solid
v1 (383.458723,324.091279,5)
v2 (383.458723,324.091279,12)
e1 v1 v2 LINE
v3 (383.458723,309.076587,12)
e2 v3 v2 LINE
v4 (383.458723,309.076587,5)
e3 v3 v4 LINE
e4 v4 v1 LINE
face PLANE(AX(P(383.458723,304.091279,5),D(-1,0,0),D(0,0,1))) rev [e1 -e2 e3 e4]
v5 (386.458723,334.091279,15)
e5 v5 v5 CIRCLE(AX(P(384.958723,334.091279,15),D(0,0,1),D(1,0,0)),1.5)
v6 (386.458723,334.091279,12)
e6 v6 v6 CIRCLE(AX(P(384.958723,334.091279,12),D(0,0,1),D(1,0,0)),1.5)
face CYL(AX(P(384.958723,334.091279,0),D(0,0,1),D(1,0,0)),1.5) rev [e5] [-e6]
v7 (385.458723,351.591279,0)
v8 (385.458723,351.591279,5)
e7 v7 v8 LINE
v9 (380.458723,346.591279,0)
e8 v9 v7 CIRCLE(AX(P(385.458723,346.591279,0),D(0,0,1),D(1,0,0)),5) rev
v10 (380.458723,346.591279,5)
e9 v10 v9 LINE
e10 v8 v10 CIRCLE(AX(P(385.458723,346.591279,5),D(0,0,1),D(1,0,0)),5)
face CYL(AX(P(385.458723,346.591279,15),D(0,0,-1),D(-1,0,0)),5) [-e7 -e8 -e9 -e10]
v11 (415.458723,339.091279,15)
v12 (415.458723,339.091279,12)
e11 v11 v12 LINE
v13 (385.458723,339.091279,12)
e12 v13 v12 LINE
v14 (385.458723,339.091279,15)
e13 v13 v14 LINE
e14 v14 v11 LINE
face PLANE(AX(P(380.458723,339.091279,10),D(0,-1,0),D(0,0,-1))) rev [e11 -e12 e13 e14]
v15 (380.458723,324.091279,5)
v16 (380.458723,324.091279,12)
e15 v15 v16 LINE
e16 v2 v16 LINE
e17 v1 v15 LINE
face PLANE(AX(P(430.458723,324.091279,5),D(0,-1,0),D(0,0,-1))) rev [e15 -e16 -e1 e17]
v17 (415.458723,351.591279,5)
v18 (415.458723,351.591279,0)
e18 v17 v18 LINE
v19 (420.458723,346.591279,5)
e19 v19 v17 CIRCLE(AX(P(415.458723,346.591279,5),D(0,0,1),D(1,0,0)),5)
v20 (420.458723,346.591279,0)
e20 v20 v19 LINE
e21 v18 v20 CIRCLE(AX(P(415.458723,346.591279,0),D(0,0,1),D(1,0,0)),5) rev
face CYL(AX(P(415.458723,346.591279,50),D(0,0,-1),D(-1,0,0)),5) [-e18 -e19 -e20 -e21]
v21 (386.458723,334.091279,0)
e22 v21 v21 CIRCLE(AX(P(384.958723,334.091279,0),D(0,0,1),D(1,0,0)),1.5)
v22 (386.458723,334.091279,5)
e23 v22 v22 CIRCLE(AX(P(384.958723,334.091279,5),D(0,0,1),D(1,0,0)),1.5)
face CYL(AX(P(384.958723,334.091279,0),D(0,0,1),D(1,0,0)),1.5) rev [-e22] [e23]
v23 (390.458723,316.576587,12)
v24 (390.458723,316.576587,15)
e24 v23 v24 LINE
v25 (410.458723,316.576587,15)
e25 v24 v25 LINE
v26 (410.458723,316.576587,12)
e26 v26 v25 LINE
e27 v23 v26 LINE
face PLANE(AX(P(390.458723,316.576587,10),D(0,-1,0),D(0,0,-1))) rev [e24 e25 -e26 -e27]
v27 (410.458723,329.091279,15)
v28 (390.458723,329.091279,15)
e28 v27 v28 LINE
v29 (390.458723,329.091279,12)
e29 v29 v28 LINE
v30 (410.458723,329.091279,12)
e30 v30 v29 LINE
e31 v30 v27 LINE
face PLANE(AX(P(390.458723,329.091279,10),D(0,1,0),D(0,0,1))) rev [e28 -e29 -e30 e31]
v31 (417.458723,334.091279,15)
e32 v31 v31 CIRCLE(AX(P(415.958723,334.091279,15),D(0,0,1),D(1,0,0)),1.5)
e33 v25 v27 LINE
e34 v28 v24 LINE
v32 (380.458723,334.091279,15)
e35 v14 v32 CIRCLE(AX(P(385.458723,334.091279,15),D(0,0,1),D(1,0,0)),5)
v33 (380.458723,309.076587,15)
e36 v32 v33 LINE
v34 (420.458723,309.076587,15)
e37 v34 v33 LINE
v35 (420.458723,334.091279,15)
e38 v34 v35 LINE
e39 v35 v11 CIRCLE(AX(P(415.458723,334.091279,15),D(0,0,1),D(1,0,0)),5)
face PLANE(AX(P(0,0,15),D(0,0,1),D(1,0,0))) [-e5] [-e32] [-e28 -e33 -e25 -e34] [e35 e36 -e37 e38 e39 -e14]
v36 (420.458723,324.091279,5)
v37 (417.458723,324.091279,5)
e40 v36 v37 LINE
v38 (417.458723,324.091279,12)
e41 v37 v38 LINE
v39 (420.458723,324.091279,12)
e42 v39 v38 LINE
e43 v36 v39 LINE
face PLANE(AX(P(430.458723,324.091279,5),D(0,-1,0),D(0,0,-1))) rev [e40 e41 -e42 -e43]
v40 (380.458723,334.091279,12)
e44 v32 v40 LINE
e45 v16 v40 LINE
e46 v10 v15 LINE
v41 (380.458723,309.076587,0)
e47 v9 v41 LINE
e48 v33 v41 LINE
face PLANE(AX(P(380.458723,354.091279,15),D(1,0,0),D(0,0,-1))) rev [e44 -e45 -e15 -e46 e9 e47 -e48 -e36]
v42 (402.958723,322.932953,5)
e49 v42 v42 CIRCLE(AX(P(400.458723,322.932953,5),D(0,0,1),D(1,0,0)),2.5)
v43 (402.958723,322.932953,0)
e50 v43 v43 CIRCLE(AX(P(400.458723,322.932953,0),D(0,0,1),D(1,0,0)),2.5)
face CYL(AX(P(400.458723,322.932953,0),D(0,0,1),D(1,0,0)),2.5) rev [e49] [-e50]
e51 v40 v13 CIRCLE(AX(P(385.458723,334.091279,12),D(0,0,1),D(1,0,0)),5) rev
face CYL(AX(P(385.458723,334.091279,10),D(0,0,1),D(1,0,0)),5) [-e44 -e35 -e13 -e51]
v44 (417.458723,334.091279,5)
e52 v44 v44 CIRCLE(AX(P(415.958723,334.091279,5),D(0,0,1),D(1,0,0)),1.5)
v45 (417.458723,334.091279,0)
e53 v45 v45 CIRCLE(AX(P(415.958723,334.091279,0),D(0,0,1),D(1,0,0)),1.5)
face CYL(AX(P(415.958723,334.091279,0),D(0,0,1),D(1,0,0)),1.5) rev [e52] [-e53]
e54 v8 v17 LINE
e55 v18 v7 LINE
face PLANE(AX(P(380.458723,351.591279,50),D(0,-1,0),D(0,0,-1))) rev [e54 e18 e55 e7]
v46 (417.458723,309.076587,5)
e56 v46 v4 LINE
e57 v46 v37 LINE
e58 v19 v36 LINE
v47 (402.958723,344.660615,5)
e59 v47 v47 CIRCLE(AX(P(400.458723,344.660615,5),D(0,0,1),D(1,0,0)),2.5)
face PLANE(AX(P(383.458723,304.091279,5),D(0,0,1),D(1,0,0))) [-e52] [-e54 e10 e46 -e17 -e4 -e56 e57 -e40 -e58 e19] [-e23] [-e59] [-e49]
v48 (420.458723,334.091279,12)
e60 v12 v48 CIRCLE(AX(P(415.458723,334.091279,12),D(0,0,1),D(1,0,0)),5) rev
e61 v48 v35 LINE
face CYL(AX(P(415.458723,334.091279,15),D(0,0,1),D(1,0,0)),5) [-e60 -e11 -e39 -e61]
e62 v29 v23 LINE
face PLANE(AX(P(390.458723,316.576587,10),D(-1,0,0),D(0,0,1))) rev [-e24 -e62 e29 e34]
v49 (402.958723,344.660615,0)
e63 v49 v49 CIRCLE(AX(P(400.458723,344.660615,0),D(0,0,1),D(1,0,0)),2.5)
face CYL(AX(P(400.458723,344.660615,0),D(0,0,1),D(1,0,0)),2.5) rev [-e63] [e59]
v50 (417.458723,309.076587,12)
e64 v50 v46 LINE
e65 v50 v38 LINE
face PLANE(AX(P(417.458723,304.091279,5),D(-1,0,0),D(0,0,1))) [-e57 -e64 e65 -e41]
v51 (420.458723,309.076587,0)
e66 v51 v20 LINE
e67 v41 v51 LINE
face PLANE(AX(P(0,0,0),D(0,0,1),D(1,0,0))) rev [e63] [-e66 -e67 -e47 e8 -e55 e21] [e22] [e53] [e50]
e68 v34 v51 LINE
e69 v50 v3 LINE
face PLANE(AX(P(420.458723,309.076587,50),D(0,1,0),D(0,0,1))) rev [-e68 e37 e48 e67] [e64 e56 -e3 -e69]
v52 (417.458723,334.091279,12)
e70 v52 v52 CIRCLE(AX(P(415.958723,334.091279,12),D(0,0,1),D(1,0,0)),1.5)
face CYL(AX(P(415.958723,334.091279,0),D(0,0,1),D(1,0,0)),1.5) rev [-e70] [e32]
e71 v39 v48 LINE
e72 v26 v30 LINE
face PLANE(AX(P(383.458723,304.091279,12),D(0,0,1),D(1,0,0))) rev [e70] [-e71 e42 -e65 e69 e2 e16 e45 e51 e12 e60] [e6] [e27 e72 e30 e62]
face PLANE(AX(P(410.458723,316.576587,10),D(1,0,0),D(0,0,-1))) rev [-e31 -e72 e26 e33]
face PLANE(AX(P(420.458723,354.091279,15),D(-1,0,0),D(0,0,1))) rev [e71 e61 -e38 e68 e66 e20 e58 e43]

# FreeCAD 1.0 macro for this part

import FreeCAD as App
import Part
import Sketcher

V = App.Vector


def edges_at(feature, points):
    """Names of the edges that pass closest to the given points."""
    edges = feature.Shape.Edges
    near = lambda p: min(range(len(edges)), key=lambda i: edges[i].distToShape(Part.Vertex(*p))[0])
    return sorted({f"Edge{near(p) + 1}" for p in points})

doc = App.newDocument("Part")
params = doc.addObject("Spreadsheet::Sheet", "Params")
for row, (alias, value) in enumerate([
    ("sketch1_width", "40 mm"),
    ("sketch1_height", "50 mm"),
    ("pad1_length", "15 mm"),
    ("sketch2_width", "34 mm"),
    ("sketch2_height", "7 mm"),
    ("pocket1_length", "50 mm"),
    ("sketch3_width", "30 mm"),
    ("sketch3_height", "7 mm"),
    ("pocket2_length", "50 mm"),
    ("sketch4_width", "40 mm"),
    ("sketch4_height", "2.5 mm"),
    ("pocket3_length", "50 mm"),
    ("sketch5_width", "40 mm"),
    ("sketch5_height", "12.5 mm"),
    ("pocket4_length", "5 mm"),
    ("sketch6_width", "20 mm"),
    ("pocket5_length", "5 mm"),
    ("sketch7_diameter", "5 mm"),
    ("pocket6_length", "5 mm"),
    ("sketch8_diameter", "3 mm"),
    ("pocket7_length", "15 mm"),
    ("fillet_radius", "5 mm"),
    ("fillet2_radius", "5 mm"),
], start=1):
    params.set(f"A{row}", alias)
    params.set(f"B{row}", "=" + value)
    params.setAlias(f"B{row}", alias)

body = doc.addObject("PartDesign::Body", "Body")

# Sketch on XY plane
sketch1 = body.newObject("Sketcher::SketchObject", "Sketch")
sketch1.AttachmentSupport = (doc.getObject("XY_Plane"), [""])
sketch1.MapMode = "FlatFace"
sketch1.addGeometry([
    Part.LineSegment(V(380.458723, 354.091279, 0), V(380.458723, 304.091279, 0)),
    Part.LineSegment(V(380.458723, 304.091279, 0), V(420.458723, 304.091279, 0)),
    Part.LineSegment(V(420.458723, 304.091279, 0), V(420.458723, 354.091279, 0)),
    Part.LineSegment(V(420.458723, 354.091279, 0), V(380.458723, 354.091279, 0)),
], False)
sketch1.addConstraint([
    Sketcher.Constraint("Coincident", 0, 2, 1, 1),
    Sketcher.Constraint("Coincident", 1, 2, 2, 1),
    Sketcher.Constraint("Coincident", 2, 2, 3, 1),
    Sketcher.Constraint("Coincident", 3, 2, 0, 1),
    Sketcher.Constraint("Vertical", 0),
    Sketcher.Constraint("Horizontal", 1),
    Sketcher.Constraint("Vertical", 2),
    Sketcher.Constraint("Horizontal", 3),
    Sketcher.Constraint("DistanceX", 1, 1, 1, 2, 40.0),
    Sketcher.Constraint("DistanceY", 0, 2, 0, 1, 50.0),
    Sketcher.Constraint("DistanceY", -1, 1, 0, 2, 304.091279),
    Sketcher.Constraint("DistanceX", -1, 1, 0, 2, 380.458723),
])
sketch1.setExpression("Constraints[8]", "Params.sketch1_width")
sketch1.setExpression("Constraints[9]", "Params.sketch1_height")
pad1 = body.newObject("PartDesign::Pad", "Pad")
pad1.Profile = sketch1
pad1.setExpression("Length", "Params.pad1_length")

# Sketch on XZ plane
sketch2 = body.newObject("Sketcher::SketchObject", "Sketch001")
sketch2.AttachmentSupport = (doc.getObject("XZ_Plane"), [""])
sketch2.MapMode = "FlatFace"
sketch2.AttachmentOffset = App.Placement(V(0, 0, -354.091279), App.Rotation())
sketch2.addGeometry([
    Part.LineSegment(V(383.458723, 5, 0), V(383.458723, 12, 0)),
    Part.LineSegment(V(383.458723, 12, 0), V(417.458723, 12, 0)),
    Part.LineSegment(V(417.458723, 12, 0), V(417.458723, 5, 0)),
    Part.LineSegment(V(417.458723, 5, 0), V(383.458723, 5, 0)),
], False)
sketch2.addConstraint([
    Sketcher.Constraint("Coincident", 0, 2, 1, 1),
    Sketcher.Constraint("Coincident", 1, 2, 2, 1),
    Sketcher.Constraint("Coincident", 2, 2, 3, 1),
    Sketcher.Constraint("Coincident", 3, 2, 0, 1),
    Sketcher.Constraint("Vertical", 0),
    Sketcher.Constraint("Horizontal", 1),
    Sketcher.Constraint("Vertical", 2),
    Sketcher.Constraint("Horizontal", 3),
    Sketcher.Constraint("DistanceX", 1, 1, 1, 2, 34.0),
    Sketcher.Constraint("DistanceY", 0, 1, 0, 2, 7.0),
    Sketcher.Constraint("DistanceY", -1, 1, 0, 2, 12.0),
    Sketcher.Constraint("DistanceX", -1, 1, 0, 2, 383.458723),
])
sketch2.setExpression("Constraints[8]", "Params.sketch2_width")
sketch2.setExpression("Constraints[9]", "Params.sketch2_height")
pocket1 = body.newObject("PartDesign::Pocket", "Pocket")
pocket1.Profile = sketch2
pocket1.setExpression("Length", "Params.pocket1_length")
pocket1.Reversed = True

# Sketch on YZ plane
sketch3 = body.newObject("Sketcher::SketchObject", "Sketch002")
sketch3.AttachmentSupport = (doc.getObject("YZ_Plane"), [""])
sketch3.MapMode = "FlatFace"
sketch3.AttachmentOffset = App.Placement(V(0, 0, 380.458723), App.Rotation())
sketch3.addGeometry([
    Part.LineSegment(V(354.091279, 5, 0), V(324.091279, 5, 0)),
    Part.LineSegment(V(324.091279, 5, 0), V(324.091279, 12, 0)),
    Part.LineSegment(V(324.091279, 12, 0), V(354.091279, 12, 0)),
    Part.LineSegment(V(354.091279, 12, 0), V(354.091279, 5, 0)),
], False)
sketch3.addConstraint([
    Sketcher.Constraint("Coincident", 0, 2, 1, 1),
    Sketcher.Constraint("Coincident", 1, 2, 2, 1),
    Sketcher.Constraint("Coincident", 2, 2, 3, 1),
    Sketcher.Constraint("Coincident", 3, 2, 0, 1),
    Sketcher.Constraint("Horizontal", 0),
    Sketcher.Constraint("Vertical", 1),
    Sketcher.Constraint("Horizontal", 2),
    Sketcher.Constraint("Vertical", 3),
    Sketcher.Constraint("DistanceX", 0, 2, 0, 1, 30.0),
    Sketcher.Constraint("DistanceY", 1, 1, 1, 2, 7.0),
    Sketcher.Constraint("DistanceY", -1, 1, 0, 2, 5.0),
    Sketcher.Constraint("DistanceX", -1, 1, 0, 2, 324.091279),
])
sketch3.setExpression("Constraints[8]", "Params.sketch3_width")
sketch3.setExpression("Constraints[9]", "Params.sketch3_height")
pocket2 = body.newObject("PartDesign::Pocket", "Pocket001")
pocket2.Profile = sketch3
pocket2.setExpression("Length", "Params.pocket2_length")
pocket2.Reversed = True

# Sketch on XY plane
sketch4 = body.newObject("Sketcher::SketchObject", "Sketch003")
sketch4.AttachmentSupport = (doc.getObject("XY_Plane"), [""])
sketch4.MapMode = "FlatFace"
sketch4.addGeometry([
    Part.LineSegment(V(420.458723, 354.091279, 0), V(420.458723, 351.591279, 0)),  # 0
    Part.LineSegment(V(420.458723, 351.591279, 0), V(380.458723, 351.591279, 0)),  # 1
    Part.LineSegment(V(380.458723, 351.591279, 0), V(380.458723, 354.091279, 0)),  # 2
    Part.LineSegment(V(380.458723, 354.091279, 0), V(420.458723, 354.091279, 0)),  # 3
    Part.LineSegment(V(420.458723, 309.076587, 0), V(420.458723, 304.091279, 0)),  # 4
    Part.LineSegment(V(420.458723, 304.091279, 0), V(380.458723, 304.091279, 0)),  # 5
    Part.LineSegment(V(380.458723, 304.091279, 0), V(380.458723, 309.076587, 0)),  # 6
    Part.LineSegment(V(380.458723, 309.076587, 0), V(420.458723, 309.076587, 0)),  # 7
], False)
sketch4.addConstraint([
    Sketcher.Constraint("Coincident", 0, 2, 1, 1),
    Sketcher.Constraint("Coincident", 1, 2, 2, 1),
    Sketcher.Constraint("Coincident", 2, 2, 3, 1),
    Sketcher.Constraint("Coincident", 3, 2, 0, 1),
    Sketcher.Constraint("Coincident", 4, 2, 5, 1),
    Sketcher.Constraint("Coincident", 5, 2, 6, 1),
    Sketcher.Constraint("Coincident", 6, 2, 7, 1),
    Sketcher.Constraint("Coincident", 7, 2, 4, 1),
    Sketcher.Constraint("Vertical", 0),
    Sketcher.Constraint("Horizontal", 1),
    Sketcher.Constraint("Vertical", 2),
    Sketcher.Constraint("Horizontal", 3),
    Sketcher.Constraint("Vertical", 4),
    Sketcher.Constraint("Horizontal", 5),
    Sketcher.Constraint("Vertical", 6),
    Sketcher.Constraint("Horizontal", 7),
    Sketcher.Constraint("Vertical", 3, 2, 4, 2),
    Sketcher.Constraint("Vertical", 2, 2, 5, 2),
    Sketcher.Constraint("DistanceX", 1, 2, 1, 1, 40.0),
    Sketcher.Constraint("DistanceY", 0, 2, 0, 1, 2.5),
    Sketcher.Constraint("DistanceY", 4, 2, 3, 2, 50.0),
    Sketcher.Constraint("DistanceY", 4, 2, 4, 1, 4.985308),
    Sketcher.Constraint("DistanceY", -1, 1, 0, 2, 351.591279),
    Sketcher.Constraint("DistanceX", -1, 1, 0, 2, 420.458723),
])
sketch4.setExpression("Constraints[18]", "Params.sketch4_width")
sketch4.setExpression("Constraints[19]", "Params.sketch4_height")
pocket3 = body.newObject("PartDesign::Pocket", "Pocket002")
pocket3.Profile = sketch4
pocket3.setExpression("Length", "Params.pocket3_length")
pocket3.Reversed = True

# Sketch on XY plane
sketch5 = body.newObject("Sketcher::SketchObject", "Sketch004")
sketch5.AttachmentSupport = (doc.getObject("XY_Plane"), [""])
sketch5.MapMode = "FlatFace"
sketch5.AttachmentOffset = App.Placement(V(0, 0, 15), App.Rotation())
sketch5.addGeometry([
    Part.LineSegment(V(380.458723, 351.591279, 0), V(380.458723, 339.091279, 0)),
    Part.LineSegment(V(380.458723, 339.091279, 0), V(420.458723, 339.091279, 0)),
    Part.LineSegment(V(420.458723, 339.091279, 0), V(420.458723, 351.591279, 0)),
    Part.LineSegment(V(420.458723, 351.591279, 0), V(380.458723, 351.591279, 0)),
], False)
sketch5.addConstraint([
    Sketcher.Constraint("Coincident", 0, 2, 1, 1),
    Sketcher.Constraint("Coincident", 1, 2, 2, 1),
    Sketcher.Constraint("Coincident", 2, 2, 3, 1),
    Sketcher.Constraint("Coincident", 3, 2, 0, 1),
    Sketcher.Constraint("Vertical", 0),
    Sketcher.Constraint("Horizontal", 1),
    Sketcher.Constraint("Vertical", 2),
    Sketcher.Constraint("Horizontal", 3),
    Sketcher.Constraint("DistanceX", 1, 1, 1, 2, 40.0),
    Sketcher.Constraint("DistanceY", 0, 2, 0, 1, 12.5),
    Sketcher.Constraint("DistanceY", -1, 1, 0, 2, 339.091279),
    Sketcher.Constraint("DistanceX", -1, 1, 0, 2, 380.458723),
])
sketch5.setExpression("Constraints[8]", "Params.sketch5_width")
sketch5.setExpression("Constraints[9]", "Params.sketch5_height")
pocket4 = body.newObject("PartDesign::Pocket", "Pocket003")
pocket4.Profile = sketch5
pocket4.setExpression("Length", "Params.pocket4_length")

# Sketch on XY plane
sketch6 = body.newObject("Sketcher::SketchObject", "Sketch005")
sketch6.AttachmentSupport = (doc.getObject("XY_Plane"), [""])
sketch6.MapMode = "FlatFace"
sketch6.AttachmentOffset = App.Placement(V(0, 0, 15), App.Rotation())
sketch6.addGeometry([
    Part.LineSegment(V(390.458723, 329.091279, 0), V(390.458723, 316.576587, 0)),
    Part.LineSegment(V(390.458723, 316.576587, 0), V(410.458723, 316.576587, 0)),
    Part.LineSegment(V(410.458723, 316.576587, 0), V(410.458723, 329.091279, 0)),
    Part.LineSegment(V(410.458723, 329.091279, 0), V(390.458723, 329.091279, 0)),
], False)
sketch6.addConstraint([
    Sketcher.Constraint("Coincident", 0, 2, 1, 1),
    Sketcher.Constraint("Coincident", 1, 2, 2, 1),
    Sketcher.Constraint("Coincident", 2, 2, 3, 1),
    Sketcher.Constraint("Coincident", 3, 2, 0, 1),
    Sketcher.Constraint("Vertical", 0),
    Sketcher.Constraint("Horizontal", 1),
    Sketcher.Constraint("Vertical", 2),
    Sketcher.Constraint("Horizontal", 3),
    Sketcher.Constraint("DistanceX", 1, 1, 1, 2, 20.0),
    Sketcher.Constraint("DistanceY", 0, 2, 0, 1, 12.514692),
    Sketcher.Constraint("DistanceY", -1, 1, 2, 2, 329.091279),
    Sketcher.Constraint("DistanceX", -1, 1, 0, 2, 390.458723),
])
sketch6.setExpression("Constraints[8]", "Params.sketch6_width")
pocket5 = body.newObject("PartDesign::Pocket", "Pocket004")
pocket5.Profile = sketch6
pocket5.setExpression("Length", "Params.pocket5_length")

# Sketch on XY plane
sketch7 = body.newObject("Sketcher::SketchObject", "Sketch006")
sketch7.AttachmentSupport = (doc.getObject("XY_Plane"), [""])
sketch7.MapMode = "FlatFace"
sketch7.AttachmentOffset = App.Placement(V(0, 0, 5), App.Rotation())
sketch7.addGeometry([
    Part.Circle(V(400.458723, 344.660615, 0), V(0, 0, 1), 2.5),
    Part.Circle(V(400.458723, 322.932953, 0), V(0, 0, 1), 2.5),
], False)
sketch7.addConstraint([
    Sketcher.Constraint("Equal", 0, 1),
    Sketcher.Constraint("Vertical", 0, 3, 1, 3),
    Sketcher.Constraint("Diameter", 0, 5.0),
    Sketcher.Constraint("DistanceY", 1, 3, 0, 3, 21.727662),
    Sketcher.Constraint("DistanceX", -1, 1, 0, 3, 400.458723),
    Sketcher.Constraint("DistanceY", -1, 1, 0, 3, 344.660615),
])
sketch7.setExpression("Constraints[2]", "Params.sketch7_diameter")
pocket6 = body.newObject("PartDesign::Pocket", "Pocket005")
pocket6.Profile = sketch7
pocket6.setExpression("Length", "Params.pocket6_length")

# Sketch on XY plane
sketch8 = body.newObject("Sketcher::SketchObject", "Sketch007")
sketch8.AttachmentSupport = (doc.getObject("XY_Plane"), [""])
sketch8.MapMode = "FlatFace"
sketch8.AttachmentOffset = App.Placement(V(0, 0, 15), App.Rotation())
sketch8.addGeometry([
    Part.Circle(V(415.958723, 334.091279, 0), V(0, 0, 1), 1.5),
    Part.Circle(V(384.958723, 334.091279, 0), V(0, 0, 1), 1.5),
], False)
sketch8.addConstraint([
    Sketcher.Constraint("Equal", 0, 1),
    Sketcher.Constraint("Horizontal", 0, 3, 1, 3),
    Sketcher.Constraint("Diameter", 0, 3.0),
    Sketcher.Constraint("DistanceX", 1, 3, 0, 3, 31.0),
    Sketcher.Constraint("DistanceY", -1, 1, 0, 3, 334.091279),
    Sketcher.Constraint("DistanceX", -1, 1, 0, 3, 415.958723),
])
sketch8.setExpression("Constraints[2]", "Params.sketch8_diameter")
pocket7 = body.newObject("PartDesign::Pocket", "Pocket006")
pocket7.Profile = sketch8
pocket7.setExpression("Length", "Params.pocket7_length")
doc.recompute()

fillet = body.newObject("PartDesign::Fillet", "Fillet")
fillet.Base = (pocket7, edges_at(pocket7, [(380.459, 339.091, 13.5)]))
fillet.setExpression("Radius", "Params.fillet_radius")
doc.recompute()

fillet2 = body.newObject("PartDesign::Fillet", "Fillet001")
fillet2.Base = (fillet, edges_at(fillet, [(420.459, 339.091, 13.5), (380.459, 351.591, 2.5), (420.459, 351.591, 2.5)]))
fillet2.setExpression("Radius", "Params.fillet2_radius")

doc.recompute()
